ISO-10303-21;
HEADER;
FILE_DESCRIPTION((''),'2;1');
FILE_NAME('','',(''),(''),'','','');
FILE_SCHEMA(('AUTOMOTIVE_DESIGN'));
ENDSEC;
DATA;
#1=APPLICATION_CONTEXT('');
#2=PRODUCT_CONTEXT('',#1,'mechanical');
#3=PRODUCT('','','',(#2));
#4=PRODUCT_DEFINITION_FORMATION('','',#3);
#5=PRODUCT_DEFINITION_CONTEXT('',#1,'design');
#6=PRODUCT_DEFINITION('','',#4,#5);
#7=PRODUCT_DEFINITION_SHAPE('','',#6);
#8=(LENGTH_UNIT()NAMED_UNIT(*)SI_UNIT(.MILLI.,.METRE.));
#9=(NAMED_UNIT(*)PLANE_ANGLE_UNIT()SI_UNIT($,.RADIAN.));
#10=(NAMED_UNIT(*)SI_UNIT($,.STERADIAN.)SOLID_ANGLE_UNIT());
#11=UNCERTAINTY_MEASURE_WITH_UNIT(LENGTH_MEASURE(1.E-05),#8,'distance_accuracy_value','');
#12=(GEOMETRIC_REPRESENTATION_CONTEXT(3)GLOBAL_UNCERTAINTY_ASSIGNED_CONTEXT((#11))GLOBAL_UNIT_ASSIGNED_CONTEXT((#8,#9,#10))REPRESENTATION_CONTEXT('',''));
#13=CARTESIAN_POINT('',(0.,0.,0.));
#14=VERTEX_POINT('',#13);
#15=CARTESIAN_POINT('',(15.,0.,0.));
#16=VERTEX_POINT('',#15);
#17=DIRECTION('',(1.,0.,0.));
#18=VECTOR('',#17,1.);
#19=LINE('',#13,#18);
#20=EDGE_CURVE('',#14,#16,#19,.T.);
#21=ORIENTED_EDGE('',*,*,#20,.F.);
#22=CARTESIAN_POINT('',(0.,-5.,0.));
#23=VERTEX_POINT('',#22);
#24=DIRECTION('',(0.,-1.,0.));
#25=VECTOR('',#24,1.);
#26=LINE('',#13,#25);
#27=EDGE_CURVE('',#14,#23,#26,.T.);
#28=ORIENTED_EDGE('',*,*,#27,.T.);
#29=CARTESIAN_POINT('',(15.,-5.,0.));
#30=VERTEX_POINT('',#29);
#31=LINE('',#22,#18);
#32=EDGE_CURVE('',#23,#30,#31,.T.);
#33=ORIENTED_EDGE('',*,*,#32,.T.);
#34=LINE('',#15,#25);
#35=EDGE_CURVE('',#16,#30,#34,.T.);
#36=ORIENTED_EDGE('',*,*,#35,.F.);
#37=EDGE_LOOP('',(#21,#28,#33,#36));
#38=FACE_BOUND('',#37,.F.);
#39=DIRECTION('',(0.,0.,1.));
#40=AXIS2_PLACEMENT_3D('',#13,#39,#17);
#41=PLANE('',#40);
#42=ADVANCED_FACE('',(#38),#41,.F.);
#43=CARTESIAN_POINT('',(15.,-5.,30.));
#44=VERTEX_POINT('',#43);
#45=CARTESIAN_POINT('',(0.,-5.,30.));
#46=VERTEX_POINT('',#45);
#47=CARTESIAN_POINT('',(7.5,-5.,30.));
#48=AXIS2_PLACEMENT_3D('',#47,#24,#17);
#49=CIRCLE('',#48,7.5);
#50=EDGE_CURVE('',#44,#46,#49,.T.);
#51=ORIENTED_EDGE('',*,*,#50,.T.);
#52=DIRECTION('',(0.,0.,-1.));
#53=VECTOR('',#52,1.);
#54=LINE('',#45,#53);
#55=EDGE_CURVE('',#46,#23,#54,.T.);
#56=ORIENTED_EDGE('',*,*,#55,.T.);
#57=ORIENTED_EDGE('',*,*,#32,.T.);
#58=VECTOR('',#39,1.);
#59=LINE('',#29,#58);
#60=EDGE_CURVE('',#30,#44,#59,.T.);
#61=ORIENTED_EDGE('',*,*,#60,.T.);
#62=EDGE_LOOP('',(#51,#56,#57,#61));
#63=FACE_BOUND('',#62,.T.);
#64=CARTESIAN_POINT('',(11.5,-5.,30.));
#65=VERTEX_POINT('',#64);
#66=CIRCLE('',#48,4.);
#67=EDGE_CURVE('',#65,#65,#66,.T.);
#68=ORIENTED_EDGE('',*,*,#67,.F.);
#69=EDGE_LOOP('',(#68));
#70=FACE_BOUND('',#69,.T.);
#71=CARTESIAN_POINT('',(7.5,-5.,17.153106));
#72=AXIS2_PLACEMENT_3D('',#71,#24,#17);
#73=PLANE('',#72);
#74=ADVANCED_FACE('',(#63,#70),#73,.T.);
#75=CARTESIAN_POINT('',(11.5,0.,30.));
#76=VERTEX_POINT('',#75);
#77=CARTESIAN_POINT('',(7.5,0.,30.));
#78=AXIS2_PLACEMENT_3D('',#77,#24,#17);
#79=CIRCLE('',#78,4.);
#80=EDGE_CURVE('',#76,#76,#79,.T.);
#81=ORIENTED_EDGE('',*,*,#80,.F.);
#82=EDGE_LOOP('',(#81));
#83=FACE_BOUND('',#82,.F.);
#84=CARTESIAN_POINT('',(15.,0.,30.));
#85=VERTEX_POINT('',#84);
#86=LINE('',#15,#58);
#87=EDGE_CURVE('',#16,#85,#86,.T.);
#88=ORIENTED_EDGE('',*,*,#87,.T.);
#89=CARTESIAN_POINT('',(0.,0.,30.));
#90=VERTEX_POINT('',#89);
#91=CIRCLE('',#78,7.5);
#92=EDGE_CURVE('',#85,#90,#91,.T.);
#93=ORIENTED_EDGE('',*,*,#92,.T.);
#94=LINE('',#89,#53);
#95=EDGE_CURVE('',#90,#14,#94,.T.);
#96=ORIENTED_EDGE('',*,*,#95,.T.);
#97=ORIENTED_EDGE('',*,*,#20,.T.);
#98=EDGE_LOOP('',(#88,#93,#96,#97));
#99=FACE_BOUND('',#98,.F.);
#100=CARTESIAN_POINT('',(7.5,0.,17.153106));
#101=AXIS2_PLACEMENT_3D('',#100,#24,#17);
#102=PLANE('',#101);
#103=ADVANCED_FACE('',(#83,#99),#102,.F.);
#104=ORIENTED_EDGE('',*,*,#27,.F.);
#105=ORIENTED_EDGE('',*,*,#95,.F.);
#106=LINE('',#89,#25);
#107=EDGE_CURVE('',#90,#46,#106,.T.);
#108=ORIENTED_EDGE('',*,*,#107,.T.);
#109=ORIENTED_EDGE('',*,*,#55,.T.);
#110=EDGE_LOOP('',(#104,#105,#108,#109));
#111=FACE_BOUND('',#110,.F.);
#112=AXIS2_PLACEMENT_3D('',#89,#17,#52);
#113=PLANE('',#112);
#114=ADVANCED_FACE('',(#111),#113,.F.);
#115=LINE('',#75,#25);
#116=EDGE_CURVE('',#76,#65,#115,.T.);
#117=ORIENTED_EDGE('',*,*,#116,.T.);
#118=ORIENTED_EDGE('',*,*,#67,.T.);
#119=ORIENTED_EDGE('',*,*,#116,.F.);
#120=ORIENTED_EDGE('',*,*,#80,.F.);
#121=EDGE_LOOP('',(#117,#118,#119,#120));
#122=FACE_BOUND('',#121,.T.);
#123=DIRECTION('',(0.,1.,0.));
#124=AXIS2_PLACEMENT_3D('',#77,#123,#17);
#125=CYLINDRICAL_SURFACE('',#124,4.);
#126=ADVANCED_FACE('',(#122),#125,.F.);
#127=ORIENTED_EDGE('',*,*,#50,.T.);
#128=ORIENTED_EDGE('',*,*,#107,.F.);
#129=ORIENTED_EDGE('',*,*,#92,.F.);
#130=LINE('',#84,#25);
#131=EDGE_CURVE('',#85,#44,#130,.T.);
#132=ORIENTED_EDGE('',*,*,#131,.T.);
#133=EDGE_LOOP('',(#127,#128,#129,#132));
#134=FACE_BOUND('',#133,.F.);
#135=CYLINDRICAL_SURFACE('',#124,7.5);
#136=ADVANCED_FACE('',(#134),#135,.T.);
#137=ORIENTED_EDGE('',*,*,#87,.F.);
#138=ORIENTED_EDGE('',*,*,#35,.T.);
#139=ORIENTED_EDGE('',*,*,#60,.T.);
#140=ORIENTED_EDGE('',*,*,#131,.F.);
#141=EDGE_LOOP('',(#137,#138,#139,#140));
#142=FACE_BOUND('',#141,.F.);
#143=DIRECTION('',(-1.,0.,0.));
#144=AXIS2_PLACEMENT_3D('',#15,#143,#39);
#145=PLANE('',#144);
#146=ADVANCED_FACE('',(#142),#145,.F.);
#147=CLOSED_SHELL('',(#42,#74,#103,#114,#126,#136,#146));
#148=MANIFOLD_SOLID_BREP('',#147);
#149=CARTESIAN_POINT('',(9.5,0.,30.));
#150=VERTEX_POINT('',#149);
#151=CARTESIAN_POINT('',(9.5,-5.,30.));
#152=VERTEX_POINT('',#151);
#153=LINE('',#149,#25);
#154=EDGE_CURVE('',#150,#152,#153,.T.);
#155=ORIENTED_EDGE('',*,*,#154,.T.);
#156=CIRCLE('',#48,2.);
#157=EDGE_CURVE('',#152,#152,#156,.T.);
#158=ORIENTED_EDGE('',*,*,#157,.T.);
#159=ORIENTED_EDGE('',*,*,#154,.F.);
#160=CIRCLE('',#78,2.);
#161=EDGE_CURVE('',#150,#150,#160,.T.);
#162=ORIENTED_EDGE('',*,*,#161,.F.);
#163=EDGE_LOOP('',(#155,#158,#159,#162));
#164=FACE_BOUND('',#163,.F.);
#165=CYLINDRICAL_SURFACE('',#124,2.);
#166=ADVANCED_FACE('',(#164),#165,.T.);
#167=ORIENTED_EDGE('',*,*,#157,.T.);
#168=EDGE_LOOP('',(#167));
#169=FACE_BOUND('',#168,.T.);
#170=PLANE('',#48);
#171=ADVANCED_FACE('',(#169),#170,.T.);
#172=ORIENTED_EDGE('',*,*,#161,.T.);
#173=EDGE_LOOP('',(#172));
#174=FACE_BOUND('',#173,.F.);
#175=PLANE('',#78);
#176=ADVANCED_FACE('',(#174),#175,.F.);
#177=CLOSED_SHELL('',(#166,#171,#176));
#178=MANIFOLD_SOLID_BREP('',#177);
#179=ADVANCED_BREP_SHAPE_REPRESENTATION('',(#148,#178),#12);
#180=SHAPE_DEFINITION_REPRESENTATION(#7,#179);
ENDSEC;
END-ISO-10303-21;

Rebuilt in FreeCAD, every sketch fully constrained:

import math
import FreeCAD as App
import Part
import Sketcher

V = App.Vector

doc = App.newDocument("Part")
body = doc.addObject("PartDesign::Body", "Body")
body.AllowCompound = True

# Sketch on XZ plane
sketch1 = body.newObject("Sketcher::SketchObject", "Sketch")
sketch1.AttachmentSupport = (doc.getObject("XZ_Plane"), [""])
sketch1.MapMode = "FlatFace"
sketch1.addGeometry([
    Part.LineSegment(V(0, 30, 0), V(0, 0, 0)),  # 0
    Part.LineSegment(V(0, 0, 0), V(15, 0, 0)),  # 1
    Part.LineSegment(V(15, 0, 0), V(15, 30, 0)),  # 2
    Part.ArcOfCircle(Part.Circle(V(7.5, 30, 0), V(0, 0, 1), 7.5), math.radians(0), math.radians(180)),  # 3
    Part.Circle(V(7.5, 30, 0), V(0, 0, 1), 4),  # 4
    Part.Circle(V(7.5, 30, 0), V(0, 0, 1), 2),  # 5
], False)
sketch1.addConstraint([
    Sketcher.Constraint("Coincident", 0, 2, 1, 1),
    Sketcher.Constraint("Coincident", 1, 2, 2, 1),
    Sketcher.Constraint("Tangent", 2, 2, 3, 1),
    Sketcher.Constraint("Tangent", 3, 2, 0, 1),
    Sketcher.Constraint("Vertical", 0),
    Sketcher.Constraint("Horizontal", 1),
    Sketcher.Constraint("Vertical", 2),
    Sketcher.Constraint("Coincident", 0, 2, -1, 1),
    Sketcher.Constraint("Coincident", 4, 3, 3, 3),
    Sketcher.Constraint("Coincident", 5, 3, 3, 3),
    Sketcher.Constraint("Diameter", 4, 8.0),
    Sketcher.Constraint("Diameter", 5, 4.0),
    Sketcher.Constraint("Radius", 3, 7.5),
    Sketcher.Constraint("DistanceY", 0, 2, 0, 1, 30.0),
])
pad1 = body.newObject("PartDesign::Pad", "Pad")
pad1.Profile = sketch1
pad1.Length = 5

doc.recompute()
